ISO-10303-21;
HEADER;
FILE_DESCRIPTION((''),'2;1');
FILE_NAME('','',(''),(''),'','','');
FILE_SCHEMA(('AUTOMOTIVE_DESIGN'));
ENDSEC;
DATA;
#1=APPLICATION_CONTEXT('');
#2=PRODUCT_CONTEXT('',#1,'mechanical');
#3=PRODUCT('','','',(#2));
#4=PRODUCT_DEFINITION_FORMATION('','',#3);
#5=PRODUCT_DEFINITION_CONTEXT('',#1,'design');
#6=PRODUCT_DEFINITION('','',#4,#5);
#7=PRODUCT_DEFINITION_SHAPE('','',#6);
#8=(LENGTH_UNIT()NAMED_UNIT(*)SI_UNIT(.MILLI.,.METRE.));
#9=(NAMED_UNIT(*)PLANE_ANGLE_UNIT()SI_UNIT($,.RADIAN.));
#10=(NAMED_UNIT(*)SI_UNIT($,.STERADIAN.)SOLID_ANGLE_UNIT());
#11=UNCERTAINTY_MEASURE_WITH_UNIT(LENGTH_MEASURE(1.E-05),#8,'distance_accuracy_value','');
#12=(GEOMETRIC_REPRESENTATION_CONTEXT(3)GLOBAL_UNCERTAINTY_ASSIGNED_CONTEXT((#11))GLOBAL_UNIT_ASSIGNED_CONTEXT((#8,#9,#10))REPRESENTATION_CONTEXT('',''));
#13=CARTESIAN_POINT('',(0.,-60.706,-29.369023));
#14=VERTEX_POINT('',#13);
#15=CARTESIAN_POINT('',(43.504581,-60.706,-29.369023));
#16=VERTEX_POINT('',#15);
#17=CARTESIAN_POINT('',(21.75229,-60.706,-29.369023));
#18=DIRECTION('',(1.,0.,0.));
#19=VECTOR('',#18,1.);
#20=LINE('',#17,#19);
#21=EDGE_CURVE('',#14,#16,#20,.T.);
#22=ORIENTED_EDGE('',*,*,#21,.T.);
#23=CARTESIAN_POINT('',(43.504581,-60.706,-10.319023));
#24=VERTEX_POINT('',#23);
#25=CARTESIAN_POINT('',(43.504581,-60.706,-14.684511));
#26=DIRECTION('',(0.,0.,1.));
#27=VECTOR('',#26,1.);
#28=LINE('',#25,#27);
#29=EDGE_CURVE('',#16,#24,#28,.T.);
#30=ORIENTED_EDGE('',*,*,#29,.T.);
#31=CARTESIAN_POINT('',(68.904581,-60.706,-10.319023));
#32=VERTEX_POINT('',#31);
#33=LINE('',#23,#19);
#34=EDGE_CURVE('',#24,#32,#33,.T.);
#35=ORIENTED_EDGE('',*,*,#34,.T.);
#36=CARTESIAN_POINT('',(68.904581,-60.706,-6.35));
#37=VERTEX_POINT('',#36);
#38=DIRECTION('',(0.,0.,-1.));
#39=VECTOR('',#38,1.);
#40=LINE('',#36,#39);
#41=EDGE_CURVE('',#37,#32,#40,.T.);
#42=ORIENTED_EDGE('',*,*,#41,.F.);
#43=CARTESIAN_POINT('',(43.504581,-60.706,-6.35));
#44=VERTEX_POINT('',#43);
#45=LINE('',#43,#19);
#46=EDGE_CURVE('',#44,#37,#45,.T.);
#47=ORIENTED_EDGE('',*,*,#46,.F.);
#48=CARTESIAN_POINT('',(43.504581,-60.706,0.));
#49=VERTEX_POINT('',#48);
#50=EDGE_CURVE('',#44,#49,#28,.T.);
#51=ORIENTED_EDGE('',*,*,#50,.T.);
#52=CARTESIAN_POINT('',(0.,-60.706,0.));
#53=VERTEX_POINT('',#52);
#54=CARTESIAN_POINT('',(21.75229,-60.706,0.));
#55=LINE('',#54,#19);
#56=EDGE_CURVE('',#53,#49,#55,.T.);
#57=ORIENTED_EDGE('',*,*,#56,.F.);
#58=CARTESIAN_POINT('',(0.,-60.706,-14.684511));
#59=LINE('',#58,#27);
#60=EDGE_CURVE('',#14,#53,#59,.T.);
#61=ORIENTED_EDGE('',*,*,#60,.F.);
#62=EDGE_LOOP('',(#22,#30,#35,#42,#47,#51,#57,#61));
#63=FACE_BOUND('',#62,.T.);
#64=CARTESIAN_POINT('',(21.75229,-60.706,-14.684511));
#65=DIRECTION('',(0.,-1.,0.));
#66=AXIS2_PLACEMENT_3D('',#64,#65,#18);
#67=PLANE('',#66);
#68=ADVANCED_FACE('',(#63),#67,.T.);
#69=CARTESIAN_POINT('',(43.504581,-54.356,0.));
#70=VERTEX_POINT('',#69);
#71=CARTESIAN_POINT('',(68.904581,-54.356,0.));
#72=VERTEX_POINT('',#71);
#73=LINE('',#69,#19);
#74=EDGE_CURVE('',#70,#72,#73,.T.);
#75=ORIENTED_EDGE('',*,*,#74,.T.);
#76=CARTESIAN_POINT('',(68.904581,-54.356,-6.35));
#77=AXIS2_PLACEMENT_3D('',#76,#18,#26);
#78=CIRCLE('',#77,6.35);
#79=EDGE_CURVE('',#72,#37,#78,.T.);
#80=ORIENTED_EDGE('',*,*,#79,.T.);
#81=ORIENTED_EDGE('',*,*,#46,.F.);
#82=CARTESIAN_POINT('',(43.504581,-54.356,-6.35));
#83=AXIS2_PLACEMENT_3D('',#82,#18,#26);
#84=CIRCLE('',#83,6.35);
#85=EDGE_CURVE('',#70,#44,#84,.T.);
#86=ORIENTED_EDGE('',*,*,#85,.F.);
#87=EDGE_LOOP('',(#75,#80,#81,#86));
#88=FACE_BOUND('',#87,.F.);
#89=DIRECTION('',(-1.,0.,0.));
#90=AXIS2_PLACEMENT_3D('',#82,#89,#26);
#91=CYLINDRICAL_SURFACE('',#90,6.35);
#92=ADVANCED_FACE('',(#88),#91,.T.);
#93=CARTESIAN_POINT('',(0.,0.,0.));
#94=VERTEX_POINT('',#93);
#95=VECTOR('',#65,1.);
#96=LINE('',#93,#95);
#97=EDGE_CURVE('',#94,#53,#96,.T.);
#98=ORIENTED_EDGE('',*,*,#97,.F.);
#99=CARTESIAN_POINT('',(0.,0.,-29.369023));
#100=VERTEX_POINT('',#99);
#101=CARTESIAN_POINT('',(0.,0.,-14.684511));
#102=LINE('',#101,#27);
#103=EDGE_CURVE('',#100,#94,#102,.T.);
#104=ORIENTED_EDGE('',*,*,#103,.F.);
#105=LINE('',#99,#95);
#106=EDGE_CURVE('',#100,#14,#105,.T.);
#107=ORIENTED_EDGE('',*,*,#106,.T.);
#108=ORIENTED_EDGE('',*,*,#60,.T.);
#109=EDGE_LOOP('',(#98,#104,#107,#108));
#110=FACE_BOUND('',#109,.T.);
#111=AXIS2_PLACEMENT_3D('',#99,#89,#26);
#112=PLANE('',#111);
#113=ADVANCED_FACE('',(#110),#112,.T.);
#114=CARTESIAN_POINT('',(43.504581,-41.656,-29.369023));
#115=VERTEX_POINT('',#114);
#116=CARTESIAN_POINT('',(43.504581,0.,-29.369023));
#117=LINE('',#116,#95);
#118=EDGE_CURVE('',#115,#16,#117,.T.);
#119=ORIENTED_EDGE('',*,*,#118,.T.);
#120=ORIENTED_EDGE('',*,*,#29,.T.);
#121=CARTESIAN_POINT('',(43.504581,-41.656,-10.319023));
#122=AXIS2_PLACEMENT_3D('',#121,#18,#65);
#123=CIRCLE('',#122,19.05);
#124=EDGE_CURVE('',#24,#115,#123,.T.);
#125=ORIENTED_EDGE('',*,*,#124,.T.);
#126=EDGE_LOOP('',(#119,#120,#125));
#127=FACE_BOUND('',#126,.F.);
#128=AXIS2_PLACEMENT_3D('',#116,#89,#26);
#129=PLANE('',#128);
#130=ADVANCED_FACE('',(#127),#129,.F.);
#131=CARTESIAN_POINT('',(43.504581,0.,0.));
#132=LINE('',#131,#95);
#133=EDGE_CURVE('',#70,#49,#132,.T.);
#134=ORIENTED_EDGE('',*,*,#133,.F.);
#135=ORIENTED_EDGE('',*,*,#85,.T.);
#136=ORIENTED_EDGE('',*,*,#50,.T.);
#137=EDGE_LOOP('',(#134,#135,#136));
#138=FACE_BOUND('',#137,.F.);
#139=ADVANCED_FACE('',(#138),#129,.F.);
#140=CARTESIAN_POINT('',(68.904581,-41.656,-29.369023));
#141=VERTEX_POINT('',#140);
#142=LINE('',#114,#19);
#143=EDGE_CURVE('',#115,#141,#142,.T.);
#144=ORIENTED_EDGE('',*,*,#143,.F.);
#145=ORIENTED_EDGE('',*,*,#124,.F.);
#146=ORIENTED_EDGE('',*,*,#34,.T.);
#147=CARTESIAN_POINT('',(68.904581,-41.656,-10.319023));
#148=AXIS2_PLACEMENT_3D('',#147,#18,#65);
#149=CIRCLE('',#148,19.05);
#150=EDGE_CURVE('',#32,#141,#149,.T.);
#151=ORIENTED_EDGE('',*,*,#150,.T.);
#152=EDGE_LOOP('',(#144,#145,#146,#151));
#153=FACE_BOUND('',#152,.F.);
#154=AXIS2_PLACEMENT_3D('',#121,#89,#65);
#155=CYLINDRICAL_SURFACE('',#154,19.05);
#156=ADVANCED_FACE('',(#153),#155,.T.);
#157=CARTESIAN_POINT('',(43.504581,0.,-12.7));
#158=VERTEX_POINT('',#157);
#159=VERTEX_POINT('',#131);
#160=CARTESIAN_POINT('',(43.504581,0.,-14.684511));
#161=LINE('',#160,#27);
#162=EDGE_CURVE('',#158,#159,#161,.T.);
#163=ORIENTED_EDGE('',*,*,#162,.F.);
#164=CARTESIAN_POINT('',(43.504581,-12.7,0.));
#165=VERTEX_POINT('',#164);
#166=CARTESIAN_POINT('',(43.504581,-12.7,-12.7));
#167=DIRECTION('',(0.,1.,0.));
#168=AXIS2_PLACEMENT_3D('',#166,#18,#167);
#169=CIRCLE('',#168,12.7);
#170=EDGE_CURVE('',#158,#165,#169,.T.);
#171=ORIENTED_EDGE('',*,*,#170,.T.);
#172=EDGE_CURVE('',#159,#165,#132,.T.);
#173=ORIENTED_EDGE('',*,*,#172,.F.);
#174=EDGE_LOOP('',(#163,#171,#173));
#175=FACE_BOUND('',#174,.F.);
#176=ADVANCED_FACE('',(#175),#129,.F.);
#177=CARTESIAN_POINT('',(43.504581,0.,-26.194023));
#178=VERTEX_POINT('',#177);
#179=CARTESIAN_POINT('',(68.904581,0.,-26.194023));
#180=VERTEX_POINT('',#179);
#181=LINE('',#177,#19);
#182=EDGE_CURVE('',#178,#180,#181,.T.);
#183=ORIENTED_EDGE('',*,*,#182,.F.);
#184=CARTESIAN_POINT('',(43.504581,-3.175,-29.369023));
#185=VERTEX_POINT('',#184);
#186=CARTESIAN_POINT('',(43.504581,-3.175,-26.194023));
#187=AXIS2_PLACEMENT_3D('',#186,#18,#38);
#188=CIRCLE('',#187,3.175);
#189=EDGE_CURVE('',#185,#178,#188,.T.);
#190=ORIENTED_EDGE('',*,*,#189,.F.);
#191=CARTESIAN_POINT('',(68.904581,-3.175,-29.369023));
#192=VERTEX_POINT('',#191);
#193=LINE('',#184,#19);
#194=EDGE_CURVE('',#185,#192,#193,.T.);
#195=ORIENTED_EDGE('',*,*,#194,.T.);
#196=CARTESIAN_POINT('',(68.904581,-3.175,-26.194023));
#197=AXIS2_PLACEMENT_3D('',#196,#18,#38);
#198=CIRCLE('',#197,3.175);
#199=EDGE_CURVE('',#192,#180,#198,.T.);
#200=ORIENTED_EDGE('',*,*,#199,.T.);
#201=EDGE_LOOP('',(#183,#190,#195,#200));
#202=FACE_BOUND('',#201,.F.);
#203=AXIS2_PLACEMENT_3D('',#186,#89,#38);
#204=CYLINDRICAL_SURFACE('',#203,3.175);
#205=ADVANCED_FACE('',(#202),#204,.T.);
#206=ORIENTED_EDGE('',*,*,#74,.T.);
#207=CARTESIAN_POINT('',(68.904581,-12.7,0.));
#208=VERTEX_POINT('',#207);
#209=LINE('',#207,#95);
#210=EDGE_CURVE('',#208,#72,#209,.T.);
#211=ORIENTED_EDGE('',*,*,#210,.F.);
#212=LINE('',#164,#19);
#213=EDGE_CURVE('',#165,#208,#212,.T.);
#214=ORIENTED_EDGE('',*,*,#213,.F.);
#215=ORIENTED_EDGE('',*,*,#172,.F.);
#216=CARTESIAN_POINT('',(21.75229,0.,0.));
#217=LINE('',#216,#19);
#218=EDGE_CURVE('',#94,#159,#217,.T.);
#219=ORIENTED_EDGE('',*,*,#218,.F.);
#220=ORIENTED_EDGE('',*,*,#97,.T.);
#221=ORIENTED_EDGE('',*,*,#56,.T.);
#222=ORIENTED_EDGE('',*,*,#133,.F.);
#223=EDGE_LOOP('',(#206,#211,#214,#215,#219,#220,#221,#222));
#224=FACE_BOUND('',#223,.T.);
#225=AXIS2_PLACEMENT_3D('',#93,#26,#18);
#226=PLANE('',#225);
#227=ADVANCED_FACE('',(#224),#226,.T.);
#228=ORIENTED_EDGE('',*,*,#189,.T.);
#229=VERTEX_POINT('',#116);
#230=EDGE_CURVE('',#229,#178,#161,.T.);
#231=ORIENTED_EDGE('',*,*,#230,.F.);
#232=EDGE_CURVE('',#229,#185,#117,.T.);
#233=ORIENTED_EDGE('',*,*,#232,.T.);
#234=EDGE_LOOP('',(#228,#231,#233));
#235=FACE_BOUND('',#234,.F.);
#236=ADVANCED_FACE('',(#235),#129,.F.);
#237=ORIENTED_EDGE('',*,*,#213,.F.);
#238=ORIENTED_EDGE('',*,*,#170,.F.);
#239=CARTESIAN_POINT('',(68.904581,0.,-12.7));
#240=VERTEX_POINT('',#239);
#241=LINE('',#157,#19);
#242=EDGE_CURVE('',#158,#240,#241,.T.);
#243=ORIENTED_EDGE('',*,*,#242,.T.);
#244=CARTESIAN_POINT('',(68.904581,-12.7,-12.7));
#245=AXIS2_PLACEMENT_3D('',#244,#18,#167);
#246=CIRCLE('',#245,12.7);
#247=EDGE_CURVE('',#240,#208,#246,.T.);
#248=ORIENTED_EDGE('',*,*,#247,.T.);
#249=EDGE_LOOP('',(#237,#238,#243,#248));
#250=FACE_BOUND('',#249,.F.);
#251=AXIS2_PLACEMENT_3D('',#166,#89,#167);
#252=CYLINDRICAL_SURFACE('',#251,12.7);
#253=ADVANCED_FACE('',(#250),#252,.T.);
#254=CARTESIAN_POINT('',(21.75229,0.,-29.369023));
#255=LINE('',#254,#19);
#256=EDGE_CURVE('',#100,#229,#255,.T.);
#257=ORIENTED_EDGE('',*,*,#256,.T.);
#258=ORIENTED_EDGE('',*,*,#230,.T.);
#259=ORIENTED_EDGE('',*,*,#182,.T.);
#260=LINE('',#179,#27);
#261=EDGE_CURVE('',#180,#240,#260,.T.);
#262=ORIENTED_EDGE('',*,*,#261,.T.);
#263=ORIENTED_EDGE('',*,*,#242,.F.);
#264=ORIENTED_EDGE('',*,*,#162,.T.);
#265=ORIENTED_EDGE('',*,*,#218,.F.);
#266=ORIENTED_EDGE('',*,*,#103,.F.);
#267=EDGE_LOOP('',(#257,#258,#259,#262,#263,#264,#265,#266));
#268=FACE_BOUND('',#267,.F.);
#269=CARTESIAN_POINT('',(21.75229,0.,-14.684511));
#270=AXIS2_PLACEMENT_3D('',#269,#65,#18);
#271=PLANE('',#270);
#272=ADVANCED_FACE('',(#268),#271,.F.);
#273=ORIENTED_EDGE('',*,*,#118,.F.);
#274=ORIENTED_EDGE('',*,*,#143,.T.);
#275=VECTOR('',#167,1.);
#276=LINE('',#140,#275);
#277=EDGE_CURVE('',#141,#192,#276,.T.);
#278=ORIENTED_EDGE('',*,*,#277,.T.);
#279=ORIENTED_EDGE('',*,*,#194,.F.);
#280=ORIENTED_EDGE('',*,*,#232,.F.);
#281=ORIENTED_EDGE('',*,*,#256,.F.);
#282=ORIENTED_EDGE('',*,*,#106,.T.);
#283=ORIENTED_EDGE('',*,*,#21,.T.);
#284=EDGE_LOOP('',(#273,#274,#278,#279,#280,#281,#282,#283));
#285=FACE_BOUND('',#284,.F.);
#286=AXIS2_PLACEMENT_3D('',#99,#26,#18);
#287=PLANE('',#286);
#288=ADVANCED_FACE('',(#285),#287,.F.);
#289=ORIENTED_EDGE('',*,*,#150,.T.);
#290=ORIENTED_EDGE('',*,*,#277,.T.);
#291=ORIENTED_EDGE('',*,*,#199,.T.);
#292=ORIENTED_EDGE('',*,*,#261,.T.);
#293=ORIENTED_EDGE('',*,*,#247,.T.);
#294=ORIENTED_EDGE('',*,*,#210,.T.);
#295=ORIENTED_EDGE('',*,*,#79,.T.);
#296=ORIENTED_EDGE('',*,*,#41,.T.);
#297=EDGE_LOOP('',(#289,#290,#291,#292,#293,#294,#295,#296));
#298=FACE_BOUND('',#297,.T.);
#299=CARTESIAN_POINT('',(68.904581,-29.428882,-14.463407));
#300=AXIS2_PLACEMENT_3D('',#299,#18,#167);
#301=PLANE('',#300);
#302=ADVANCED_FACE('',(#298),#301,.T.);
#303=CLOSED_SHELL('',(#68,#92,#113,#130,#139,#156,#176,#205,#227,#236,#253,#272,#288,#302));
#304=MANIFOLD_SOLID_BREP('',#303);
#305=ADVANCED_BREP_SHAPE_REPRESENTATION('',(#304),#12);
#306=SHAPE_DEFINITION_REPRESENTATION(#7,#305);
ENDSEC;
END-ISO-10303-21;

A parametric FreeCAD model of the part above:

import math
import FreeCAD as App
import Part
import Sketcher
from FreeCAD import Vector
Q = App.Units.Quantity

doc = App.newDocument("Part")
body = doc.addObject("PartDesign::Body", "Body")

sketch1 = body.newObject("Sketcher::SketchObject", "Sketch")
sketch1.AttachmentSupport = (doc.getObject("XZ_Plane"), [""])
sketch1.MapMode = "FlatFace"
sketch1.addGeometry([
    Part.LineSegment(Vector(0, 0, 0), Vector(0, -29.369023, 0)),
    Part.LineSegment(Vector(0, -29.369023, 0), Vector(43.504581, -29.369023, 0)),
    Part.LineSegment(Vector(43.504581, -29.369023, 0), Vector(43.504581, 0, 0)),
    Part.LineSegment(Vector(43.504581, 0, 0), Vector(0, 0, 0)),
], False)
sketch1.addConstraint([
    Sketcher.Constraint("Coincident", 0, 2, 1, 1),
    Sketcher.Constraint("Coincident", 1, 2, 2, 1),
    Sketcher.Constraint("Coincident", 2, 2, 3, 1),
    Sketcher.Constraint("Coincident", 3, 2, 0, 1),
    Sketcher.Constraint("Vertical", 0),
    Sketcher.Constraint("Horizontal", 1),
    Sketcher.Constraint("Vertical", 2),
    Sketcher.Constraint("Horizontal", 3),
    Sketcher.Constraint("Coincident", 3, 2, -1, 1),
    Sketcher.Constraint("DistanceX", 1, 1, 1, 2, Q("43.504581 mm")),
    Sketcher.Constraint("DistanceY", 0, 2, 0, 1, Q("29.369023 mm")),
])
pad1 = body.newObject("PartDesign::Pad", "Pad")
pad1.Profile = sketch1
pad1.Length = Q("2.39 in")

sketch2 = body.newObject("Sketcher::SketchObject", "Sketch001")
sketch2.AttachmentSupport = (doc.getObject("YZ_Plane"), [""])
sketch2.MapMode = "FlatFace"
sketch2.AttachmentOffset = App.Placement(Vector(0, 0, 43.504581), App.Rotation())
sketch2.addGeometry([
    Part.ArcOfCircle(Part.Circle(Vector(-3.175, -26.194023, 0), Vector(0, 0, 1), 3.175), math.radians(-90), math.radians(0)),
    Part.LineSegment(Vector(0, -26.194023, 0), Vector(0, -12.7, 0)),
    Part.ArcOfCircle(Part.Circle(Vector(-12.7, -12.7, 0), Vector(0, 0, 1), 12.7), math.radians(0), math.radians(90)),
    Part.LineSegment(Vector(-12.7, 0, 0), Vector(-54.356, 0, 0)),
    Part.ArcOfCircle(Part.Circle(Vector(-54.356, -6.35, 0), Vector(0, 0, 1), 6.35), math.radians(90), math.radians(180)),
    Part.LineSegment(Vector(-60.706, -6.35, 0), Vector(-60.706, -10.319023, 0)),
    Part.ArcOfCircle(Part.Circle(Vector(-41.656, -10.319023, 0), Vector(0, 0, 1), 19.05), math.radians(180), math.radians(270)),
    Part.LineSegment(Vector(-41.656, -29.369023, 0), Vector(-3.175, -29.369023, 0)),
], False)
sketch2.addConstraint([
    Sketcher.Constraint("Tangent", 0, 2, 1, 1),
    Sketcher.Constraint("Tangent", 1, 2, 2, 1),
    Sketcher.Constraint("Tangent", 2, 2, 3, 1),
    Sketcher.Constraint("Tangent", 3, 2, 4, 1),
    Sketcher.Constraint("Tangent", 4, 2, 5, 1),
    Sketcher.Constraint("Tangent", 5, 2, 6, 1),
    Sketcher.Constraint("Tangent", 6, 2, 7, 1),
    Sketcher.Constraint("Tangent", 7, 2, 0, 1),
    Sketcher.Constraint("Vertical", 1),
    Sketcher.Constraint("Horizontal", 3),
    Sketcher.Constraint("Vertical", 5),
    Sketcher.Constraint("Horizontal", 7),
    Sketcher.Constraint("PointOnObject", 0, 2, -2),
    Sketcher.Constraint("PointOnObject", 2, 2, -1),
    Sketcher.Constraint("Radius", 2, Q("0.5 in")),
    Sketcher.Constraint("Radius", 4, Q("0.25 in")),
    Sketcher.Constraint("Radius", 6, Q("0.75 in")),
    Sketcher.Constraint("Radius", 0, Q("0.125 in")),
    Sketcher.Constraint("DistanceX", 3, 2, 3, 1, Q("1.64 in")),
    Sketcher.Constraint("DistanceY", 1, 1, 1, 2, Q("13.494023 mm")),
])
pad2 = body.newObject("PartDesign::Pad", "Pad001")
pad2.Profile = sketch2
pad2.Length = Q("1 in")

doc.recompute()
